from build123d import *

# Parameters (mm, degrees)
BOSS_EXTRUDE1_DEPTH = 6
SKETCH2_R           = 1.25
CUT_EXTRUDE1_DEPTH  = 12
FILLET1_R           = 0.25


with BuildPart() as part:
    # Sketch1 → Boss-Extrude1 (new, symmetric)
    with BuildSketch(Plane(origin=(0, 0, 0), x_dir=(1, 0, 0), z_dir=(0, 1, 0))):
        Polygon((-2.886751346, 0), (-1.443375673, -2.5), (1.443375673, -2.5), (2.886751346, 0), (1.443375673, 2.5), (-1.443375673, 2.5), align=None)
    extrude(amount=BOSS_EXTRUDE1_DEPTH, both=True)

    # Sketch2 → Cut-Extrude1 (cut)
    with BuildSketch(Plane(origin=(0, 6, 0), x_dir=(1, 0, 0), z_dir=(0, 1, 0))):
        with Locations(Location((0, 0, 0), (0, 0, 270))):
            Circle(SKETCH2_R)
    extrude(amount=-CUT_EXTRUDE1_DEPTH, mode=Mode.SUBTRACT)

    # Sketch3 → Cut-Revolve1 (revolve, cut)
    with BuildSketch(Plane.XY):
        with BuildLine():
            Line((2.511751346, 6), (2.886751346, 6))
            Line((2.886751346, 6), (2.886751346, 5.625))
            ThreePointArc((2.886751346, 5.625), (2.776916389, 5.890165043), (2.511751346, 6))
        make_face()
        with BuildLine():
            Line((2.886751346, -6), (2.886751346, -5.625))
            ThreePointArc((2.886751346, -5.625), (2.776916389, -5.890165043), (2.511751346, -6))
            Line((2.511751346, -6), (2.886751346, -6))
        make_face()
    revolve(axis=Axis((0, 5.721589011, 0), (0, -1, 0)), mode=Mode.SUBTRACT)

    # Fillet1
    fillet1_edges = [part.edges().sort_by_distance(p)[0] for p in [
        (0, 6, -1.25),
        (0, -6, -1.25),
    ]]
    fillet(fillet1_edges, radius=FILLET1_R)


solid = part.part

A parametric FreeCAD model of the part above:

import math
import FreeCAD as App
import Part
import Sketcher
Q = App.Units.Quantity


def edges_at(feature, points):
    """Names of the edges that pass closest to the given points."""
    edges = feature.Shape.Edges
    near = lambda p: min(range(len(edges)), key=lambda i: edges[i].distToShape(Part.Vertex(*p))[0])
    return sorted({f"Edge{near(p) + 1}" for p in points})

doc = App.newDocument("Part")
body = doc.addObject("PartDesign::Body", "Body")

sketch1 = body.newObject("Sketcher::SketchObject", "Sketch")
sketch1.AttachmentSupport = (doc.getObject("XZ_Plane"), [""])
sketch1.MapMode = "FlatFace"
sketch1.addGeometry([
    Part.LineSegment(App.Vector(-2.9, 0, 0), App.Vector(-1.4, 2.5, 0)),
    Part.LineSegment(App.Vector(-1.4, 2.5, 0), App.Vector(1.4, 2.5, 0)),
    Part.LineSegment(App.Vector(1.4, 2.5, 0), App.Vector(2.9, 0, 0)),
    Part.LineSegment(App.Vector(2.9, 0, 0), App.Vector(1.4, -2.5, 0)),
    Part.LineSegment(App.Vector(1.4, -2.5, 0), App.Vector(-1.4, -2.5, 0)),
    Part.LineSegment(App.Vector(-1.4, -2.5, 0), App.Vector(-2.9, 0, 0)),
], False)
sketch1.addConstraint([
    Sketcher.Constraint("Coincident", 0, 2, 1, 1),
    Sketcher.Constraint("Coincident", 1, 2, 2, 1),
    Sketcher.Constraint("Coincident", 2, 2, 3, 1),
    Sketcher.Constraint("Coincident", 3, 2, 4, 1),
    Sketcher.Constraint("Coincident", 4, 2, 5, 1),
    Sketcher.Constraint("Coincident", 5, 2, 0, 1),
    Sketcher.Constraint("Horizontal", 1),
    Sketcher.Constraint("Horizontal", 4),
    Sketcher.Constraint("Symmetric", 0, 2, 3, 2, -1, 1),
    Sketcher.Constraint("Symmetric", 2, 2, 5, 2, -1, 1),
    Sketcher.Constraint("PointOnObject", 2, 2, -1),
    Sketcher.Constraint("Parallel", 2, 5),
    Sketcher.Constraint("Vertical", 1, 2, 3, 2),
    Sketcher.Constraint("Angle", 0, Q("60 deg")),
    Sketcher.Constraint("DistanceY", 3, 2, 1, 2, 5.0),
    Sketcher.Constraint("DistanceX", 1, 1, 1, 2, 2.886751),
])
pad1 = body.newObject("PartDesign::Pad", "Pad")
pad1.Profile = sketch1
pad1.Length = 12
pad1.Midplane = True

sketch2 = body.newObject("Sketcher::SketchObject", "Sketch001")
sketch2.AttachmentSupport = (doc.getObject("XZ_Plane"), [""])
sketch2.MapMode = "FlatFace"
sketch2.AttachmentOffset = App.Placement(App.Vector(0, 0, -6), App.Rotation())
sketch2.addGeometry(Part.Circle(App.Vector(0, 0, 0), App.Vector(0, 0, 1), 1.2), False)
sketch2.addConstraint([
    Sketcher.Constraint("Coincident", 0, 3, -1, 1),
    Sketcher.Constraint("Diameter", 0, 2.5),
])
pocket1 = body.newObject("PartDesign::Pocket", "Pocket")
pocket1.Profile = sketch2
pocket1.Length = 12
pocket1.Reversed = True

sketch3 = body.newObject("Sketcher::SketchObject", "Sketch002")
sketch3.AttachmentSupport = (doc.getObject("XY_Plane"), [""])
sketch3.MapMode = "FlatFace"
sketch3.addGeometry([
    Part.LineSegment(App.Vector(2.89, 6, 0), App.Vector(2.51, 6, 0)),
    Part.ArcOfCircle(Part.Circle(App.Vector(2.51, 5.62, 0), App.Vector(0, 0, 1), 0.38), math.radians(0), math.radians(90)),
    Part.LineSegment(App.Vector(2.89, 5.62, 0), App.Vector(2.89, 6, 0)),
    Part.LineSegment(App.Vector(2.89, -6, 0), App.Vector(2.89, -5.62, 0)),
    Part.ArcOfCircle(Part.Circle(App.Vector(2.51, -5.62, 0), App.Vector(0, 0, 1), 0.38), math.radians(-90), math.radians(0)),
    Part.LineSegment(App.Vector(2.51, -6, 0), App.Vector(2.89, -6, 0)),
], False)
sketch3.addConstraint([
    Sketcher.Constraint("Tangent", 0, 2, 1, 2),
    Sketcher.Constraint("Tangent", 1, 1, 2, 1),
    Sketcher.Constraint("Coincident", 2, 2, 0, 1),
    Sketcher.Constraint("Tangent", 3, 2, 4, 2),
    Sketcher.Constraint("Tangent", 4, 1, 5, 1),
    Sketcher.Constraint("Coincident", 5, 2, 3, 1),
    Sketcher.Constraint("Horizontal", 0),
    Sketcher.Constraint("Vertical", 2),
    Sketcher.Constraint("Vertical", 3),
    Sketcher.Constraint("Horizontal", 5),
    Sketcher.Constraint("Equal", 1, 4),
    Sketcher.Constraint("Symmetric", 1, 3, 4, 3, -1),
    Sketcher.Constraint("DistanceY", -1, 1, 0, 2, 6.0),
    Sketcher.Constraint("Radius", 1, 0.375),
    Sketcher.Constraint("DistanceX", -1, 1, 1, 3, 2.511751),
])
groove = body.newObject("PartDesign::Groove", "Groove")
groove.Profile = sketch3
groove.ReferenceAxis = (sketch3, ["V_Axis"])
groove.Angle = 360
doc.recompute()

fillet = body.newObject("PartDesign::Fillet", "Fillet")
fillet.Base = (groove, edges_at(groove, [(0, 6, -1.25), (0, -6, -1.25)]))
fillet.Radius = 0.25

doc.recompute()
